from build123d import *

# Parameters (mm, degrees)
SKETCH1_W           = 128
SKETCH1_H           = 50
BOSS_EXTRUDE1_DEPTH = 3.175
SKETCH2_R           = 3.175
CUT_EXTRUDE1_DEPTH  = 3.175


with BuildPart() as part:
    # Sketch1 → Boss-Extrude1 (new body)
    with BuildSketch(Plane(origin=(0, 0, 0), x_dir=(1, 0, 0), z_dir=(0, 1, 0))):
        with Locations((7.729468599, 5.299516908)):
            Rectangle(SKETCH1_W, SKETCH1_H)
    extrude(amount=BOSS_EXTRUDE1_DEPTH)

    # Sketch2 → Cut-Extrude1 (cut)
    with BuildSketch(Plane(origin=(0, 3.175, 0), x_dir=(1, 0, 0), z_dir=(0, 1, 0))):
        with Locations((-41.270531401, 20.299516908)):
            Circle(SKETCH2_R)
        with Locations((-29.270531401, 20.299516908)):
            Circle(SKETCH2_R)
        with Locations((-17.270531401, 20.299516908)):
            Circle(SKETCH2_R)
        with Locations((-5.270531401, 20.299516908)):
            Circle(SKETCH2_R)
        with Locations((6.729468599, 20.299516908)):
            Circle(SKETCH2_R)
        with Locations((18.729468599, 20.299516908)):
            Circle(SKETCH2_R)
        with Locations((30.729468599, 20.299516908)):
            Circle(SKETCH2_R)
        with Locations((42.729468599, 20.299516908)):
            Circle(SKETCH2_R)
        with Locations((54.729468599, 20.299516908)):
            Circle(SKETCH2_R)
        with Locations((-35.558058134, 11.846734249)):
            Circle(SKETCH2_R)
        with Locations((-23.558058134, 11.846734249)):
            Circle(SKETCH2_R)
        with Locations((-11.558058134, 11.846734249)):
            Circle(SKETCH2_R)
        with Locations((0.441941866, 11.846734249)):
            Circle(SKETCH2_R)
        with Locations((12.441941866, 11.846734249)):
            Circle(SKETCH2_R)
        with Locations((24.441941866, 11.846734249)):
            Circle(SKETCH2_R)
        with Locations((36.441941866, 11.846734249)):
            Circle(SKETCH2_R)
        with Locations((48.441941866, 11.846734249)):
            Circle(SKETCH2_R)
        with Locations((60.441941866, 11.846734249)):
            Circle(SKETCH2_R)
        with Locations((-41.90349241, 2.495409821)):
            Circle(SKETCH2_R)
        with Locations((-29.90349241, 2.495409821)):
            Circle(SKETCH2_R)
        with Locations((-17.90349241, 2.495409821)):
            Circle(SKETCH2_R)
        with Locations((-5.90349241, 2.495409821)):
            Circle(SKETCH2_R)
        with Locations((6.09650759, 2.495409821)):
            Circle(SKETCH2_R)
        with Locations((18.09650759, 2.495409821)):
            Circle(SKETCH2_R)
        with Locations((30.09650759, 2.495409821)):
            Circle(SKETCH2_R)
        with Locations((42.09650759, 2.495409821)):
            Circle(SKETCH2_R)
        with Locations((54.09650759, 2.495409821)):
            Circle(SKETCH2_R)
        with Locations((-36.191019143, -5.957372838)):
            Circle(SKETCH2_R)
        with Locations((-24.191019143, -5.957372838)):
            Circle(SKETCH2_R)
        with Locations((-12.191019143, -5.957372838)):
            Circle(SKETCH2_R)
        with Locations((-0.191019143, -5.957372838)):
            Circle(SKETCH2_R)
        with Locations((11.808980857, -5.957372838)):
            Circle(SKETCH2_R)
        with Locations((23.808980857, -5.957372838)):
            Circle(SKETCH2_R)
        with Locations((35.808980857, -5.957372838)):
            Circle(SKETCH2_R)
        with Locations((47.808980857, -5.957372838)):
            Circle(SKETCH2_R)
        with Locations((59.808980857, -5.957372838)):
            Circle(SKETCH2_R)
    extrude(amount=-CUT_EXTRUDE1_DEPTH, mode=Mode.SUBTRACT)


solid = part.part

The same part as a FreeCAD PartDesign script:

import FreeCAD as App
import Part
import Sketcher
from FreeCAD import Vector
Q = App.Units.Quantity

doc = App.newDocument("Part")
body = doc.addObject("PartDesign::Body", "Body")

sketch1 = body.newObject("Sketcher::SketchObject", "Sketch")
sketch1.AttachmentSupport = (doc.getObject("XZ_Plane"), [""])
sketch1.MapMode = "FlatFace"
sketch1.addGeometry([
    Part.LineSegment(Vector(-56, -30, 0), Vector(-56, 20, 0)),
    Part.LineSegment(Vector(-56, 20, 0), Vector(72, 20, 0)),
    Part.LineSegment(Vector(72, 20, 0), Vector(72, -30, 0)),
    Part.LineSegment(Vector(72, -30, 0), Vector(-56, -30, 0)),
], False)
sketch1.addConstraint([
    Sketcher.Constraint("Coincident", 0, 2, 1, 1),
    Sketcher.Constraint("Coincident", 1, 2, 2, 1),
    Sketcher.Constraint("Coincident", 2, 2, 3, 1),
    Sketcher.Constraint("Coincident", 3, 2, 0, 1),
    Sketcher.Constraint("Vertical", 0),
    Sketcher.Constraint("Horizontal", 1),
    Sketcher.Constraint("Vertical", 2),
    Sketcher.Constraint("Horizontal", 3),
    Sketcher.Constraint("DistanceX", 1, 1, 1, 2, Q("128 mm")),
    Sketcher.Constraint("DistanceY", 0, 1, 0, 2, Q("50 mm")),
    Sketcher.Constraint("DistanceX", 0, 2, -1, 1, Q("56.270531 mm")),
    Sketcher.Constraint("DistanceY", -1, 1, 0, 2, Q("19.700483 mm")),
])
pad1 = body.newObject("PartDesign::Pad", "Pad")
pad1.Profile = sketch1
pad1.Length = 3.175
pad1.Reversed = True

sketch2 = body.newObject("Sketcher::SketchObject", "Sketch001")
sketch2.AttachmentSupport = (doc.getObject("XZ_Plane"), [""])
sketch2.MapMode = "FlatFace"
sketch2.AttachmentOffset = App.Placement(Vector(0, 0, -3.175), App.Rotation())
sketch2.addGeometry([
    Part.Circle(Vector(-41.3, -20.3, 0), Vector(0, 0, 1), 3.2),
    Part.Circle(Vector(-29.3, -20.3, 0), Vector(0, 0, 1), 3.2),
    Part.Circle(Vector(-17.3, -20.3, 0), Vector(0, 0, 1), 3.2),
    Part.Circle(Vector(-5.3, -20.3, 0), Vector(0, 0, 1), 3.2),
    Part.Circle(Vector(6.7, -20.3, 0), Vector(0, 0, 1), 3.2),
    Part.Circle(Vector(18.7, -20.3, 0), Vector(0, 0, 1), 3.2),
    Part.Circle(Vector(30.7, -20.3, 0), Vector(0, 0, 1), 3.2),
    Part.Circle(Vector(42.7, -20.3, 0), Vector(0, 0, 1), 3.2),
    Part.Circle(Vector(54.7, -20.3, 0), Vector(0, 0, 1), 3.2),
    Part.Circle(Vector(-35.6, -11.8, 0), Vector(0, 0, 1), 3.2),
    Part.Circle(Vector(-23.6, -11.8, 0), Vector(0, 0, 1), 3.2),
    Part.Circle(Vector(-11.6, -11.8, 0), Vector(0, 0, 1), 3.2),
    Part.Circle(Vector(0.4, -11.8, 0), Vector(0, 0, 1), 3.2),
    Part.Circle(Vector(12.4, -11.8, 0), Vector(0, 0, 1), 3.2),
    Part.Circle(Vector(24.4, -11.8, 0), Vector(0, 0, 1), 3.2),
    Part.Circle(Vector(36.4, -11.8, 0), Vector(0, 0, 1), 3.2),
    Part.Circle(Vector(48.4, -11.8, 0), Vector(0, 0, 1), 3.2),
    Part.Circle(Vector(60.4, -11.8, 0), Vector(0, 0, 1), 3.2),
    Part.Circle(Vector(-41.9, -2.5, 0), Vector(0, 0, 1), 3.2),
    Part.Circle(Vector(-29.9, -2.5, 0), Vector(0, 0, 1), 3.2),
    Part.Circle(Vector(-17.9, -2.5, 0), Vector(0, 0, 1), 3.2),
    Part.Circle(Vector(-5.9, -2.5, 0), Vector(0, 0, 1), 3.2),
    Part.Circle(Vector(6.1, -2.5, 0), Vector(0, 0, 1), 3.2),
    Part.Circle(Vector(18.1, -2.5, 0), Vector(0, 0, 1), 3.2),
    Part.Circle(Vector(30.1, -2.5, 0), Vector(0, 0, 1), 3.2),
    Part.Circle(Vector(42.1, -2.5, 0), Vector(0, 0, 1), 3.2),
    Part.Circle(Vector(54.1, -2.5, 0), Vector(0, 0, 1), 3.2),
    Part.Circle(Vector(-36.2, 6, 0), Vector(0, 0, 1), 3.2),
    Part.Circle(Vector(-24.2, 6, 0), Vector(0, 0, 1), 3.2),
    Part.Circle(Vector(-12.2, 6, 0), Vector(0, 0, 1), 3.2),
    Part.Circle(Vector(-0.2, 6, 0), Vector(0, 0, 1), 3.2),
    Part.Circle(Vector(11.8, 6, 0), Vector(0, 0, 1), 3.2),
    Part.Circle(Vector(23.8, 6, 0), Vector(0, 0, 1), 3.2),
    Part.Circle(Vector(35.8, 6, 0), Vector(0, 0, 1), 3.2),
    Part.Circle(Vector(47.8, 6, 0), Vector(0, 0, 1), 3.2),
    Part.Circle(Vector(59.8, 6, 0), Vector(0, 0, 1), 3.2),
], False)
sketch2.addConstraint([
    Sketcher.Constraint("Equal", 0, 1),
    Sketcher.Constraint("Equal", 1, 2),
    Sketcher.Constraint("Equal", 2, 3),
    Sketcher.Constraint("Equal", 3, 4),
    Sketcher.Constraint("Equal", 4, 5),
    Sketcher.Constraint("Equal", 5, 6),
    Sketcher.Constraint("Equal", 6, 7),
    Sketcher.Constraint("Equal", 7, 8),
    Sketcher.Constraint("Equal", 8, 9),
    Sketcher.Constraint("Equal", 9, 10),
    Sketcher.Constraint("Equal", 10, 11),
    Sketcher.Constraint("Equal", 11, 12),
    Sketcher.Constraint("Equal", 12, 13),
    Sketcher.Constraint("Equal", 13, 14),
    Sketcher.Constraint("Equal", 14, 15),
    Sketcher.Constraint("Equal", 15, 16),
    Sketcher.Constraint("Equal", 16, 17),
    Sketcher.Constraint("Equal", 17, 18),
    Sketcher.Constraint("Equal", 18, 19),
    Sketcher.Constraint("Equal", 19, 20),
    Sketcher.Constraint("Equal", 20, 21),
    Sketcher.Constraint("Equal", 21, 22),
    Sketcher.Constraint("Equal", 22, 23),
    Sketcher.Constraint("Equal", 23, 24),
    Sketcher.Constraint("Equal", 24, 25),
    Sketcher.Constraint("Equal", 25, 26),
    Sketcher.Constraint("Equal", 26, 27),
    Sketcher.Constraint("Equal", 27, 28),
    Sketcher.Constraint("Equal", 28, 29),
    Sketcher.Constraint("Equal", 29, 30),
    Sketcher.Constraint("Equal", 30, 31),
    Sketcher.Constraint("Equal", 31, 32),
    Sketcher.Constraint("Equal", 32, 33),
    Sketcher.Constraint("Equal", 33, 34),
    Sketcher.Constraint("Equal", 34, 35),
    Sketcher.Constraint("Horizontal", 0, 3, 1, 3),
    Sketcher.Constraint("Horizontal", 1, 3, 2, 3),
    Sketcher.Constraint("Horizontal", 2, 3, 3, 3),
    Sketcher.Constraint("Horizontal", 3, 3, 4, 3),
    Sketcher.Constraint("Horizontal", 4, 3, 5, 3),
    Sketcher.Constraint("Horizontal", 5, 3, 6, 3),
    Sketcher.Constraint("Horizontal", 6, 3, 7, 3),
    Sketcher.Constraint("Horizontal", 7, 3, 8, 3),
    Sketcher.Constraint("Horizontal", 9, 3, 10, 3),
    Sketcher.Constraint("Horizontal", 10, 3, 11, 3),
    Sketcher.Constraint("Horizontal", 11, 3, 12, 3),
    Sketcher.Constraint("Horizontal", 12, 3, 13, 3),
    Sketcher.Constraint("Horizontal", 13, 3, 14, 3),
    Sketcher.Constraint("Horizontal", 14, 3, 15, 3),
    Sketcher.Constraint("Horizontal", 15, 3, 16, 3),
    Sketcher.Constraint("Horizontal", 16, 3, 17, 3),
    Sketcher.Constraint("Horizontal", 18, 3, 19, 3),
    Sketcher.Constraint("Horizontal", 19, 3, 20, 3),
    Sketcher.Constraint("Horizontal", 20, 3, 21, 3),
    Sketcher.Constraint("Horizontal", 21, 3, 22, 3),
    Sketcher.Constraint("Horizontal", 22, 3, 23, 3),
    Sketcher.Constraint("Horizontal", 23, 3, 24, 3),
    Sketcher.Constraint("Horizontal", 24, 3, 25, 3),
    Sketcher.Constraint("Horizontal", 25, 3, 26, 3),
    Sketcher.Constraint("Horizontal", 27, 3, 28, 3),
    Sketcher.Constraint("Horizontal", 28, 3, 29, 3),
    Sketcher.Constraint("Horizontal", 29, 3, 30, 3),
    Sketcher.Constraint("Horizontal", 30, 3, 31, 3),
    Sketcher.Constraint("Horizontal", 31, 3, 32, 3),
    Sketcher.Constraint("Horizontal", 32, 3, 33, 3),
    Sketcher.Constraint("Horizontal", 33, 3, 34, 3),
    Sketcher.Constraint("Horizontal", 34, 3, 35, 3),
    Sketcher.Constraint("Diameter", 0, Q("6.35 mm")),
    Sketcher.Constraint("DistanceX", 0, 3, 1, 3, Q("12 mm")),
    Sketcher.Constraint("DistanceX", 1, 3, 2, 3, Q("12 mm")),
    Sketcher.Constraint("DistanceX", 2, 3, 3, 3, Q("12 mm")),
    Sketcher.Constraint("DistanceX", 3, 3, 4, 3, Q("12 mm")),
    Sketcher.Constraint("DistanceX", 4, 3, 5, 3, Q("12 mm")),
    Sketcher.Constraint("DistanceX", 5, 3, 6, 3, Q("12 mm")),
    Sketcher.Constraint("DistanceX", 6, 3, 7, 3, Q("12 mm")),
    Sketcher.Constraint("DistanceX", 7, 3, 8, 3, Q("12 mm")),
    Sketcher.Constraint("DistanceX", 9, 3, 10, 3, Q("12 mm")),
    Sketcher.Constraint("DistanceX", 10, 3, 11, 3, Q("12 mm")),
    Sketcher.Constraint("DistanceX", 11, 3, 12, 3, Q("12 mm")),
    Sketcher.Constraint("DistanceX", 12, 3, 13, 3, Q("12 mm")),
    Sketcher.Constraint("DistanceX", 13, 3, 14, 3, Q("12 mm")),
    Sketcher.Constraint("DistanceX", 14, 3, 15, 3, Q("12 mm")),
    Sketcher.Constraint("DistanceX", 15, 3, 16, 3, Q("12 mm")),
    Sketcher.Constraint("DistanceX", 16, 3, 17, 3, Q("12 mm")),
    Sketcher.Constraint("DistanceX", 18, 3, 19, 3, Q("12 mm")),
    Sketcher.Constraint("DistanceX", 19, 3, 20, 3, Q("12 mm")),
    Sketcher.Constraint("DistanceX", 20, 3, 21, 3, Q("12 mm")),
    Sketcher.Constraint("DistanceX", 21, 3, 22, 3, Q("12 mm")),
    Sketcher.Constraint("DistanceX", 22, 3, 23, 3, Q("12 mm")),
    Sketcher.Constraint("DistanceX", 23, 3, 24, 3, Q("12 mm")),
    Sketcher.Constraint("DistanceX", 24, 3, 25, 3, Q("12 mm")),
    Sketcher.Constraint("DistanceX", 25, 3, 26, 3, Q("12 mm")),
    Sketcher.Constraint("DistanceX", 27, 3, 28, 3, Q("12 mm")),
    Sketcher.Constraint("DistanceX", 28, 3, 29, 3, Q("12 mm")),
    Sketcher.Constraint("DistanceX", 29, 3, 30, 3, Q("12 mm")),
    Sketcher.Constraint("DistanceX", 30, 3, 31, 3, Q("12 mm")),
    Sketcher.Constraint("DistanceX", 31, 3, 32, 3, Q("12 mm")),
    Sketcher.Constraint("DistanceX", 32, 3, 33, 3, Q("12 mm")),
    Sketcher.Constraint("DistanceX", 33, 3, 34, 3, Q("12 mm")),
    Sketcher.Constraint("DistanceX", 34, 3, 35, 3, Q("12 mm")),
    Sketcher.Constraint("DistanceX", 0, 3, -1, 1, Q("41.270531 mm")),
    Sketcher.Constraint("DistanceX", 9, 3, -1, 1, Q("35.558058 mm")),
    Sketcher.Constraint("DistanceY", 18, 3, -1, 1, Q("2.49541 mm")),
    Sketcher.Constraint("DistanceX", 27, 3, -1, 1, Q("36.191019 mm")),
    Sketcher.Constraint("DistanceX", 18, 3, 0, 3, Q("0.632961 mm")),
    Sketcher.Constraint("DistanceY", 0, 3, -1, 1, Q("20.299517 mm")),
    Sketcher.Constraint("DistanceY", 9, 3, -1, 1, Q("11.846734 mm")),
    Sketcher.Constraint("DistanceY", -1, 1, 27, 3, Q("5.957373 mm")),
])
pocket1 = body.newObject("PartDesign::Pocket", "Pocket")
pocket1.Profile = sketch2
pocket1.Length = 3.175
pocket1.Reversed = True

doc.recompute()
